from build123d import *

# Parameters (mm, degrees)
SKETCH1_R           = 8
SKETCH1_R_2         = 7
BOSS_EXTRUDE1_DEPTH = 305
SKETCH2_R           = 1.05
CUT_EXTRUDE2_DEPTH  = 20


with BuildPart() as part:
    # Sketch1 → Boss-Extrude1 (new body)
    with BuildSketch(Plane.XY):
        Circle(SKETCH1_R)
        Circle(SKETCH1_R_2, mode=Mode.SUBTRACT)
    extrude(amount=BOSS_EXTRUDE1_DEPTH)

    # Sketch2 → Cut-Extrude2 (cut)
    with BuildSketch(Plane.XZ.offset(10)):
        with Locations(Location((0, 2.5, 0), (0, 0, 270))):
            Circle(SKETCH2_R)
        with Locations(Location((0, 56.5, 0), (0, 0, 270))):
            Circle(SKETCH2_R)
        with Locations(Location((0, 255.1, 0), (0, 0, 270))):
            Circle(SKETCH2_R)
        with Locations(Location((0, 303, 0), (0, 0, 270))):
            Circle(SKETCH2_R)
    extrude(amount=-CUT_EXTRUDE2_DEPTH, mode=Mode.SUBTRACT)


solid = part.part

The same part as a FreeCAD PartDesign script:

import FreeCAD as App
import Part
import Sketcher
from FreeCAD import Vector
Q = App.Units.Quantity

doc = App.newDocument("Part")
body = doc.addObject("PartDesign::Body", "Body")

# Sketch on XY plane
sketch1 = body.newObject("Sketcher::SketchObject", "Sketch")
sketch1.AttachmentSupport = (doc.getObject("XY_Plane"), [""])
sketch1.MapMode = "FlatFace"
sketch1.addGeometry([
    Part.Circle(Vector(0, 0, 0), Vector(0, 0, 1), 8),
    Part.Circle(Vector(0, 0, 0), Vector(0, 0, 1), 7),
], False)
sketch1.addConstraint([
    Sketcher.Constraint("Coincident", 0, 3, -1, 1),
    Sketcher.Constraint("Coincident", 1, 3, -1, 1),
    Sketcher.Constraint("Diameter", 0, Q("16 mm")),
    Sketcher.Constraint("Diameter", 1, Q("14 mm")),
])
pad1 = body.newObject("PartDesign::Pad", "Pad")
pad1.Profile = sketch1
pad1.Length = 305

# Sketch on XZ plane
sketch2 = body.newObject("Sketcher::SketchObject", "Sketch001")
sketch2.AttachmentSupport = (doc.getObject("XZ_Plane"), [""])
sketch2.MapMode = "FlatFace"
sketch2.AttachmentOffset = App.Placement(Vector(0, 0, 10), App.Rotation())
sketch2.addGeometry([
    Part.Circle(Vector(0, 2.5, 0), Vector(0, 0, 1), 1.1),
    Part.Circle(Vector(0, 56.5, 0), Vector(0, 0, 1), 1.1),
    Part.Circle(Vector(0, 255.1, 0), Vector(0, 0, 1), 1.1),
    Part.Circle(Vector(0, 303, 0), Vector(0, 0, 1), 1.1),
], False)
sketch2.addConstraint([
    Sketcher.Constraint("Equal", 0, 1),
    Sketcher.Constraint("Equal", 1, 2),
    Sketcher.Constraint("Equal", 2, 3),
    Sketcher.Constraint("PointOnObject", 0, 3, -2),
    Sketcher.Constraint("PointOnObject", 1, 3, -2),
    Sketcher.Constraint("PointOnObject", 2, 3, -2),
    Sketcher.Constraint("PointOnObject", 3, 3, -2),
    Sketcher.Constraint("Diameter", 0, Q("2.1 mm")),
    Sketcher.Constraint("DistanceY", -1, 1, 3, 3, Q("303 mm")),
    Sketcher.Constraint("DistanceY", 0, 3, 1, 3, Q("54 mm")),
    Sketcher.Constraint("DistanceY", -1, 1, 0, 3, Q("2.5 mm")),
    Sketcher.Constraint("DistanceY", -1, 1, 2, 3, Q("255.1 mm")),
])
pocket1 = body.newObject("PartDesign::Pocket", "Pocket")
pocket1.Profile = sketch2
pocket1.Length = 20

doc.recompute()
